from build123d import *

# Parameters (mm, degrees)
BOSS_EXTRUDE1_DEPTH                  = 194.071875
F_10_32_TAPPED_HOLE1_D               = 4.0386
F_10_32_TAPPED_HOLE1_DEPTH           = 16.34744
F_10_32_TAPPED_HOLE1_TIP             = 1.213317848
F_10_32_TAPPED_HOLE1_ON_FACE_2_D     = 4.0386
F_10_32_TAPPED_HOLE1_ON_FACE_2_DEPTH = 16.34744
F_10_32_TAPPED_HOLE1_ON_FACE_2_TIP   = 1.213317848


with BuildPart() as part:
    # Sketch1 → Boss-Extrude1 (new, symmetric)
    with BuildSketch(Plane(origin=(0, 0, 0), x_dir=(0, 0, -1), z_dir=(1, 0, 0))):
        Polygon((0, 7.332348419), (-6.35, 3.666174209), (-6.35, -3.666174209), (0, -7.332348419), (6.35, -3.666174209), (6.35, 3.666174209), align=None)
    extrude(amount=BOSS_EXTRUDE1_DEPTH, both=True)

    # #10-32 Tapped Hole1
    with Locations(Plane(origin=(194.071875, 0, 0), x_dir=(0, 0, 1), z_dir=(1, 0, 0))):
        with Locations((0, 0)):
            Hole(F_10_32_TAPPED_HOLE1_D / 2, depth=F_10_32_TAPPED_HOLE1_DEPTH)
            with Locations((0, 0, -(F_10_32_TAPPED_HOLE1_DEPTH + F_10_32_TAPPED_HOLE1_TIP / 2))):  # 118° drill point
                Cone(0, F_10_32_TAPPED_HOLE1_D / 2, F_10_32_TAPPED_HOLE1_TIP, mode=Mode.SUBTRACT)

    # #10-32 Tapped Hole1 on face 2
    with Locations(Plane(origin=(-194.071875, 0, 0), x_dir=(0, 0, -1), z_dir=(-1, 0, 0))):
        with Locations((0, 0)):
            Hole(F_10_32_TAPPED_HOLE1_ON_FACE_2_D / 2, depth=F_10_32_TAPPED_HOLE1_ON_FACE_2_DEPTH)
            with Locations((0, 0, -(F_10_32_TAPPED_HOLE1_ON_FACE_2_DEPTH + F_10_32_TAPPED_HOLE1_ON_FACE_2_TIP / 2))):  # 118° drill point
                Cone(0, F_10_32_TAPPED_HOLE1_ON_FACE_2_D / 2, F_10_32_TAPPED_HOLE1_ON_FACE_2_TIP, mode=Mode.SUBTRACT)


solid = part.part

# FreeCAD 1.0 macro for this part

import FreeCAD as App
import Part
import Sketcher
from FreeCAD import Vector
Q = App.Units.Quantity

doc = App.newDocument("Part")
body = doc.addObject("PartDesign::Body", "Body")

sketch1 = body.newObject("Sketcher::SketchObject", "Sketch")
sketch1.AttachmentSupport = (doc.getObject("YZ_Plane"), [""])
sketch1.MapMode = "FlatFace"
sketch1.addGeometry([
    Part.LineSegment(Vector(7, 0, 0), Vector(4, 6, 0)),
    Part.LineSegment(Vector(4, 6, 0), Vector(-4, 6, 0)),
    Part.LineSegment(Vector(-4, 6, 0), Vector(-7, 0, 0)),
    Part.LineSegment(Vector(-7, 0, 0), Vector(-4, -6, 0)),
    Part.LineSegment(Vector(-4, -6, 0), Vector(4, -6, 0)),
    Part.LineSegment(Vector(4, -6, 0), Vector(7, 0, 0)),
], False)
sketch1.addConstraint([
    Sketcher.Constraint("Coincident", 0, 2, 1, 1),
    Sketcher.Constraint("Coincident", 1, 2, 2, 1),
    Sketcher.Constraint("Coincident", 2, 2, 3, 1),
    Sketcher.Constraint("Coincident", 3, 2, 4, 1),
    Sketcher.Constraint("Coincident", 4, 2, 5, 1),
    Sketcher.Constraint("Coincident", 5, 2, 0, 1),
    Sketcher.Constraint("Horizontal", 1),
    Sketcher.Constraint("Horizontal", 4),
    Sketcher.Constraint("Symmetric", 0, 2, 3, 2, -1, 1),
    Sketcher.Constraint("Symmetric", 2, 2, 5, 2, -1, 1),
    Sketcher.Constraint("PointOnObject", 2, 2, -1),
    Sketcher.Constraint("Parallel", 2, 5),
    Sketcher.Constraint("Vertical", 1, 2, 3, 2),
    Sketcher.Constraint("Angle", 0, Q("120 deg")),
    Sketcher.Constraint("DistanceY", 3, 2, 1, 2, Q("0.5 in")),
    Sketcher.Constraint("DistanceX", 1, 2, 1, 1, 7.332348),
])
pad1 = body.newObject("PartDesign::Pad", "Pad")
pad1.Profile = sketch1
pad1.Length = Q("15.28125 in")
pad1.Midplane = True

sketch2 = body.newObject("Sketcher::SketchObject", "Sketch001")
sketch2.AttachmentSupport = (doc.getObject("YZ_Plane"), [""])
sketch2.MapMode = "FlatFace"
sketch2.AttachmentOffset = App.Placement(Vector(0, 0, 7.640625 * 25.4), App.Rotation())
sketch2.addGeometry(Part.Circle(Vector(0, 0, 0), Vector(0, 0, 1), 2), False)
sketch2.addConstraint([
    Sketcher.Constraint("Coincident", 0, 3, -1, 1),
    Sketcher.Constraint("Diameter", 0, Q("0.159 in")),
])
doc.recompute()
hole = body.newObject("PartDesign::Hole", "Hole")
hole.Profile = sketch2
hole.ThreadType = "None"
hole.Diameter = Q("0.159 in")
hole.DepthType = "Dimension"
hole.Depth = Q("0.6436 in")
hole.DrillPoint = "Angled"
hole.DrillPointAngle = 118

sketch3 = body.newObject("Sketcher::SketchObject", "Sketch002")
sketch3.AttachmentSupport = (doc.getObject("YZ_Plane"), [""])
sketch3.MapMode = "FlatFace"
sketch3.AttachmentOffset = App.Placement(Vector(0, 0, -7.640625 * 25.4), App.Rotation())
sketch3.addGeometry(Part.Circle(Vector(0, 0, 0), Vector(0, 0, 1), 2), False)
sketch3.addConstraint([
    Sketcher.Constraint("Coincident", 0, 3, -1, 1),
    Sketcher.Constraint("Diameter", 0, Q("0.159 in")),
])
doc.recompute()
hole2 = body.newObject("PartDesign::Hole", "Hole001")
hole2.Profile = sketch3
hole2.ThreadType = "None"
hole2.Diameter = Q("0.159 in")
hole2.DepthType = "Dimension"
hole2.Depth = Q("0.6436 in")
hole2.DrillPoint = "Angled"
hole2.DrillPointAngle = 118
hole2.Reversed = True

doc.recompute()
